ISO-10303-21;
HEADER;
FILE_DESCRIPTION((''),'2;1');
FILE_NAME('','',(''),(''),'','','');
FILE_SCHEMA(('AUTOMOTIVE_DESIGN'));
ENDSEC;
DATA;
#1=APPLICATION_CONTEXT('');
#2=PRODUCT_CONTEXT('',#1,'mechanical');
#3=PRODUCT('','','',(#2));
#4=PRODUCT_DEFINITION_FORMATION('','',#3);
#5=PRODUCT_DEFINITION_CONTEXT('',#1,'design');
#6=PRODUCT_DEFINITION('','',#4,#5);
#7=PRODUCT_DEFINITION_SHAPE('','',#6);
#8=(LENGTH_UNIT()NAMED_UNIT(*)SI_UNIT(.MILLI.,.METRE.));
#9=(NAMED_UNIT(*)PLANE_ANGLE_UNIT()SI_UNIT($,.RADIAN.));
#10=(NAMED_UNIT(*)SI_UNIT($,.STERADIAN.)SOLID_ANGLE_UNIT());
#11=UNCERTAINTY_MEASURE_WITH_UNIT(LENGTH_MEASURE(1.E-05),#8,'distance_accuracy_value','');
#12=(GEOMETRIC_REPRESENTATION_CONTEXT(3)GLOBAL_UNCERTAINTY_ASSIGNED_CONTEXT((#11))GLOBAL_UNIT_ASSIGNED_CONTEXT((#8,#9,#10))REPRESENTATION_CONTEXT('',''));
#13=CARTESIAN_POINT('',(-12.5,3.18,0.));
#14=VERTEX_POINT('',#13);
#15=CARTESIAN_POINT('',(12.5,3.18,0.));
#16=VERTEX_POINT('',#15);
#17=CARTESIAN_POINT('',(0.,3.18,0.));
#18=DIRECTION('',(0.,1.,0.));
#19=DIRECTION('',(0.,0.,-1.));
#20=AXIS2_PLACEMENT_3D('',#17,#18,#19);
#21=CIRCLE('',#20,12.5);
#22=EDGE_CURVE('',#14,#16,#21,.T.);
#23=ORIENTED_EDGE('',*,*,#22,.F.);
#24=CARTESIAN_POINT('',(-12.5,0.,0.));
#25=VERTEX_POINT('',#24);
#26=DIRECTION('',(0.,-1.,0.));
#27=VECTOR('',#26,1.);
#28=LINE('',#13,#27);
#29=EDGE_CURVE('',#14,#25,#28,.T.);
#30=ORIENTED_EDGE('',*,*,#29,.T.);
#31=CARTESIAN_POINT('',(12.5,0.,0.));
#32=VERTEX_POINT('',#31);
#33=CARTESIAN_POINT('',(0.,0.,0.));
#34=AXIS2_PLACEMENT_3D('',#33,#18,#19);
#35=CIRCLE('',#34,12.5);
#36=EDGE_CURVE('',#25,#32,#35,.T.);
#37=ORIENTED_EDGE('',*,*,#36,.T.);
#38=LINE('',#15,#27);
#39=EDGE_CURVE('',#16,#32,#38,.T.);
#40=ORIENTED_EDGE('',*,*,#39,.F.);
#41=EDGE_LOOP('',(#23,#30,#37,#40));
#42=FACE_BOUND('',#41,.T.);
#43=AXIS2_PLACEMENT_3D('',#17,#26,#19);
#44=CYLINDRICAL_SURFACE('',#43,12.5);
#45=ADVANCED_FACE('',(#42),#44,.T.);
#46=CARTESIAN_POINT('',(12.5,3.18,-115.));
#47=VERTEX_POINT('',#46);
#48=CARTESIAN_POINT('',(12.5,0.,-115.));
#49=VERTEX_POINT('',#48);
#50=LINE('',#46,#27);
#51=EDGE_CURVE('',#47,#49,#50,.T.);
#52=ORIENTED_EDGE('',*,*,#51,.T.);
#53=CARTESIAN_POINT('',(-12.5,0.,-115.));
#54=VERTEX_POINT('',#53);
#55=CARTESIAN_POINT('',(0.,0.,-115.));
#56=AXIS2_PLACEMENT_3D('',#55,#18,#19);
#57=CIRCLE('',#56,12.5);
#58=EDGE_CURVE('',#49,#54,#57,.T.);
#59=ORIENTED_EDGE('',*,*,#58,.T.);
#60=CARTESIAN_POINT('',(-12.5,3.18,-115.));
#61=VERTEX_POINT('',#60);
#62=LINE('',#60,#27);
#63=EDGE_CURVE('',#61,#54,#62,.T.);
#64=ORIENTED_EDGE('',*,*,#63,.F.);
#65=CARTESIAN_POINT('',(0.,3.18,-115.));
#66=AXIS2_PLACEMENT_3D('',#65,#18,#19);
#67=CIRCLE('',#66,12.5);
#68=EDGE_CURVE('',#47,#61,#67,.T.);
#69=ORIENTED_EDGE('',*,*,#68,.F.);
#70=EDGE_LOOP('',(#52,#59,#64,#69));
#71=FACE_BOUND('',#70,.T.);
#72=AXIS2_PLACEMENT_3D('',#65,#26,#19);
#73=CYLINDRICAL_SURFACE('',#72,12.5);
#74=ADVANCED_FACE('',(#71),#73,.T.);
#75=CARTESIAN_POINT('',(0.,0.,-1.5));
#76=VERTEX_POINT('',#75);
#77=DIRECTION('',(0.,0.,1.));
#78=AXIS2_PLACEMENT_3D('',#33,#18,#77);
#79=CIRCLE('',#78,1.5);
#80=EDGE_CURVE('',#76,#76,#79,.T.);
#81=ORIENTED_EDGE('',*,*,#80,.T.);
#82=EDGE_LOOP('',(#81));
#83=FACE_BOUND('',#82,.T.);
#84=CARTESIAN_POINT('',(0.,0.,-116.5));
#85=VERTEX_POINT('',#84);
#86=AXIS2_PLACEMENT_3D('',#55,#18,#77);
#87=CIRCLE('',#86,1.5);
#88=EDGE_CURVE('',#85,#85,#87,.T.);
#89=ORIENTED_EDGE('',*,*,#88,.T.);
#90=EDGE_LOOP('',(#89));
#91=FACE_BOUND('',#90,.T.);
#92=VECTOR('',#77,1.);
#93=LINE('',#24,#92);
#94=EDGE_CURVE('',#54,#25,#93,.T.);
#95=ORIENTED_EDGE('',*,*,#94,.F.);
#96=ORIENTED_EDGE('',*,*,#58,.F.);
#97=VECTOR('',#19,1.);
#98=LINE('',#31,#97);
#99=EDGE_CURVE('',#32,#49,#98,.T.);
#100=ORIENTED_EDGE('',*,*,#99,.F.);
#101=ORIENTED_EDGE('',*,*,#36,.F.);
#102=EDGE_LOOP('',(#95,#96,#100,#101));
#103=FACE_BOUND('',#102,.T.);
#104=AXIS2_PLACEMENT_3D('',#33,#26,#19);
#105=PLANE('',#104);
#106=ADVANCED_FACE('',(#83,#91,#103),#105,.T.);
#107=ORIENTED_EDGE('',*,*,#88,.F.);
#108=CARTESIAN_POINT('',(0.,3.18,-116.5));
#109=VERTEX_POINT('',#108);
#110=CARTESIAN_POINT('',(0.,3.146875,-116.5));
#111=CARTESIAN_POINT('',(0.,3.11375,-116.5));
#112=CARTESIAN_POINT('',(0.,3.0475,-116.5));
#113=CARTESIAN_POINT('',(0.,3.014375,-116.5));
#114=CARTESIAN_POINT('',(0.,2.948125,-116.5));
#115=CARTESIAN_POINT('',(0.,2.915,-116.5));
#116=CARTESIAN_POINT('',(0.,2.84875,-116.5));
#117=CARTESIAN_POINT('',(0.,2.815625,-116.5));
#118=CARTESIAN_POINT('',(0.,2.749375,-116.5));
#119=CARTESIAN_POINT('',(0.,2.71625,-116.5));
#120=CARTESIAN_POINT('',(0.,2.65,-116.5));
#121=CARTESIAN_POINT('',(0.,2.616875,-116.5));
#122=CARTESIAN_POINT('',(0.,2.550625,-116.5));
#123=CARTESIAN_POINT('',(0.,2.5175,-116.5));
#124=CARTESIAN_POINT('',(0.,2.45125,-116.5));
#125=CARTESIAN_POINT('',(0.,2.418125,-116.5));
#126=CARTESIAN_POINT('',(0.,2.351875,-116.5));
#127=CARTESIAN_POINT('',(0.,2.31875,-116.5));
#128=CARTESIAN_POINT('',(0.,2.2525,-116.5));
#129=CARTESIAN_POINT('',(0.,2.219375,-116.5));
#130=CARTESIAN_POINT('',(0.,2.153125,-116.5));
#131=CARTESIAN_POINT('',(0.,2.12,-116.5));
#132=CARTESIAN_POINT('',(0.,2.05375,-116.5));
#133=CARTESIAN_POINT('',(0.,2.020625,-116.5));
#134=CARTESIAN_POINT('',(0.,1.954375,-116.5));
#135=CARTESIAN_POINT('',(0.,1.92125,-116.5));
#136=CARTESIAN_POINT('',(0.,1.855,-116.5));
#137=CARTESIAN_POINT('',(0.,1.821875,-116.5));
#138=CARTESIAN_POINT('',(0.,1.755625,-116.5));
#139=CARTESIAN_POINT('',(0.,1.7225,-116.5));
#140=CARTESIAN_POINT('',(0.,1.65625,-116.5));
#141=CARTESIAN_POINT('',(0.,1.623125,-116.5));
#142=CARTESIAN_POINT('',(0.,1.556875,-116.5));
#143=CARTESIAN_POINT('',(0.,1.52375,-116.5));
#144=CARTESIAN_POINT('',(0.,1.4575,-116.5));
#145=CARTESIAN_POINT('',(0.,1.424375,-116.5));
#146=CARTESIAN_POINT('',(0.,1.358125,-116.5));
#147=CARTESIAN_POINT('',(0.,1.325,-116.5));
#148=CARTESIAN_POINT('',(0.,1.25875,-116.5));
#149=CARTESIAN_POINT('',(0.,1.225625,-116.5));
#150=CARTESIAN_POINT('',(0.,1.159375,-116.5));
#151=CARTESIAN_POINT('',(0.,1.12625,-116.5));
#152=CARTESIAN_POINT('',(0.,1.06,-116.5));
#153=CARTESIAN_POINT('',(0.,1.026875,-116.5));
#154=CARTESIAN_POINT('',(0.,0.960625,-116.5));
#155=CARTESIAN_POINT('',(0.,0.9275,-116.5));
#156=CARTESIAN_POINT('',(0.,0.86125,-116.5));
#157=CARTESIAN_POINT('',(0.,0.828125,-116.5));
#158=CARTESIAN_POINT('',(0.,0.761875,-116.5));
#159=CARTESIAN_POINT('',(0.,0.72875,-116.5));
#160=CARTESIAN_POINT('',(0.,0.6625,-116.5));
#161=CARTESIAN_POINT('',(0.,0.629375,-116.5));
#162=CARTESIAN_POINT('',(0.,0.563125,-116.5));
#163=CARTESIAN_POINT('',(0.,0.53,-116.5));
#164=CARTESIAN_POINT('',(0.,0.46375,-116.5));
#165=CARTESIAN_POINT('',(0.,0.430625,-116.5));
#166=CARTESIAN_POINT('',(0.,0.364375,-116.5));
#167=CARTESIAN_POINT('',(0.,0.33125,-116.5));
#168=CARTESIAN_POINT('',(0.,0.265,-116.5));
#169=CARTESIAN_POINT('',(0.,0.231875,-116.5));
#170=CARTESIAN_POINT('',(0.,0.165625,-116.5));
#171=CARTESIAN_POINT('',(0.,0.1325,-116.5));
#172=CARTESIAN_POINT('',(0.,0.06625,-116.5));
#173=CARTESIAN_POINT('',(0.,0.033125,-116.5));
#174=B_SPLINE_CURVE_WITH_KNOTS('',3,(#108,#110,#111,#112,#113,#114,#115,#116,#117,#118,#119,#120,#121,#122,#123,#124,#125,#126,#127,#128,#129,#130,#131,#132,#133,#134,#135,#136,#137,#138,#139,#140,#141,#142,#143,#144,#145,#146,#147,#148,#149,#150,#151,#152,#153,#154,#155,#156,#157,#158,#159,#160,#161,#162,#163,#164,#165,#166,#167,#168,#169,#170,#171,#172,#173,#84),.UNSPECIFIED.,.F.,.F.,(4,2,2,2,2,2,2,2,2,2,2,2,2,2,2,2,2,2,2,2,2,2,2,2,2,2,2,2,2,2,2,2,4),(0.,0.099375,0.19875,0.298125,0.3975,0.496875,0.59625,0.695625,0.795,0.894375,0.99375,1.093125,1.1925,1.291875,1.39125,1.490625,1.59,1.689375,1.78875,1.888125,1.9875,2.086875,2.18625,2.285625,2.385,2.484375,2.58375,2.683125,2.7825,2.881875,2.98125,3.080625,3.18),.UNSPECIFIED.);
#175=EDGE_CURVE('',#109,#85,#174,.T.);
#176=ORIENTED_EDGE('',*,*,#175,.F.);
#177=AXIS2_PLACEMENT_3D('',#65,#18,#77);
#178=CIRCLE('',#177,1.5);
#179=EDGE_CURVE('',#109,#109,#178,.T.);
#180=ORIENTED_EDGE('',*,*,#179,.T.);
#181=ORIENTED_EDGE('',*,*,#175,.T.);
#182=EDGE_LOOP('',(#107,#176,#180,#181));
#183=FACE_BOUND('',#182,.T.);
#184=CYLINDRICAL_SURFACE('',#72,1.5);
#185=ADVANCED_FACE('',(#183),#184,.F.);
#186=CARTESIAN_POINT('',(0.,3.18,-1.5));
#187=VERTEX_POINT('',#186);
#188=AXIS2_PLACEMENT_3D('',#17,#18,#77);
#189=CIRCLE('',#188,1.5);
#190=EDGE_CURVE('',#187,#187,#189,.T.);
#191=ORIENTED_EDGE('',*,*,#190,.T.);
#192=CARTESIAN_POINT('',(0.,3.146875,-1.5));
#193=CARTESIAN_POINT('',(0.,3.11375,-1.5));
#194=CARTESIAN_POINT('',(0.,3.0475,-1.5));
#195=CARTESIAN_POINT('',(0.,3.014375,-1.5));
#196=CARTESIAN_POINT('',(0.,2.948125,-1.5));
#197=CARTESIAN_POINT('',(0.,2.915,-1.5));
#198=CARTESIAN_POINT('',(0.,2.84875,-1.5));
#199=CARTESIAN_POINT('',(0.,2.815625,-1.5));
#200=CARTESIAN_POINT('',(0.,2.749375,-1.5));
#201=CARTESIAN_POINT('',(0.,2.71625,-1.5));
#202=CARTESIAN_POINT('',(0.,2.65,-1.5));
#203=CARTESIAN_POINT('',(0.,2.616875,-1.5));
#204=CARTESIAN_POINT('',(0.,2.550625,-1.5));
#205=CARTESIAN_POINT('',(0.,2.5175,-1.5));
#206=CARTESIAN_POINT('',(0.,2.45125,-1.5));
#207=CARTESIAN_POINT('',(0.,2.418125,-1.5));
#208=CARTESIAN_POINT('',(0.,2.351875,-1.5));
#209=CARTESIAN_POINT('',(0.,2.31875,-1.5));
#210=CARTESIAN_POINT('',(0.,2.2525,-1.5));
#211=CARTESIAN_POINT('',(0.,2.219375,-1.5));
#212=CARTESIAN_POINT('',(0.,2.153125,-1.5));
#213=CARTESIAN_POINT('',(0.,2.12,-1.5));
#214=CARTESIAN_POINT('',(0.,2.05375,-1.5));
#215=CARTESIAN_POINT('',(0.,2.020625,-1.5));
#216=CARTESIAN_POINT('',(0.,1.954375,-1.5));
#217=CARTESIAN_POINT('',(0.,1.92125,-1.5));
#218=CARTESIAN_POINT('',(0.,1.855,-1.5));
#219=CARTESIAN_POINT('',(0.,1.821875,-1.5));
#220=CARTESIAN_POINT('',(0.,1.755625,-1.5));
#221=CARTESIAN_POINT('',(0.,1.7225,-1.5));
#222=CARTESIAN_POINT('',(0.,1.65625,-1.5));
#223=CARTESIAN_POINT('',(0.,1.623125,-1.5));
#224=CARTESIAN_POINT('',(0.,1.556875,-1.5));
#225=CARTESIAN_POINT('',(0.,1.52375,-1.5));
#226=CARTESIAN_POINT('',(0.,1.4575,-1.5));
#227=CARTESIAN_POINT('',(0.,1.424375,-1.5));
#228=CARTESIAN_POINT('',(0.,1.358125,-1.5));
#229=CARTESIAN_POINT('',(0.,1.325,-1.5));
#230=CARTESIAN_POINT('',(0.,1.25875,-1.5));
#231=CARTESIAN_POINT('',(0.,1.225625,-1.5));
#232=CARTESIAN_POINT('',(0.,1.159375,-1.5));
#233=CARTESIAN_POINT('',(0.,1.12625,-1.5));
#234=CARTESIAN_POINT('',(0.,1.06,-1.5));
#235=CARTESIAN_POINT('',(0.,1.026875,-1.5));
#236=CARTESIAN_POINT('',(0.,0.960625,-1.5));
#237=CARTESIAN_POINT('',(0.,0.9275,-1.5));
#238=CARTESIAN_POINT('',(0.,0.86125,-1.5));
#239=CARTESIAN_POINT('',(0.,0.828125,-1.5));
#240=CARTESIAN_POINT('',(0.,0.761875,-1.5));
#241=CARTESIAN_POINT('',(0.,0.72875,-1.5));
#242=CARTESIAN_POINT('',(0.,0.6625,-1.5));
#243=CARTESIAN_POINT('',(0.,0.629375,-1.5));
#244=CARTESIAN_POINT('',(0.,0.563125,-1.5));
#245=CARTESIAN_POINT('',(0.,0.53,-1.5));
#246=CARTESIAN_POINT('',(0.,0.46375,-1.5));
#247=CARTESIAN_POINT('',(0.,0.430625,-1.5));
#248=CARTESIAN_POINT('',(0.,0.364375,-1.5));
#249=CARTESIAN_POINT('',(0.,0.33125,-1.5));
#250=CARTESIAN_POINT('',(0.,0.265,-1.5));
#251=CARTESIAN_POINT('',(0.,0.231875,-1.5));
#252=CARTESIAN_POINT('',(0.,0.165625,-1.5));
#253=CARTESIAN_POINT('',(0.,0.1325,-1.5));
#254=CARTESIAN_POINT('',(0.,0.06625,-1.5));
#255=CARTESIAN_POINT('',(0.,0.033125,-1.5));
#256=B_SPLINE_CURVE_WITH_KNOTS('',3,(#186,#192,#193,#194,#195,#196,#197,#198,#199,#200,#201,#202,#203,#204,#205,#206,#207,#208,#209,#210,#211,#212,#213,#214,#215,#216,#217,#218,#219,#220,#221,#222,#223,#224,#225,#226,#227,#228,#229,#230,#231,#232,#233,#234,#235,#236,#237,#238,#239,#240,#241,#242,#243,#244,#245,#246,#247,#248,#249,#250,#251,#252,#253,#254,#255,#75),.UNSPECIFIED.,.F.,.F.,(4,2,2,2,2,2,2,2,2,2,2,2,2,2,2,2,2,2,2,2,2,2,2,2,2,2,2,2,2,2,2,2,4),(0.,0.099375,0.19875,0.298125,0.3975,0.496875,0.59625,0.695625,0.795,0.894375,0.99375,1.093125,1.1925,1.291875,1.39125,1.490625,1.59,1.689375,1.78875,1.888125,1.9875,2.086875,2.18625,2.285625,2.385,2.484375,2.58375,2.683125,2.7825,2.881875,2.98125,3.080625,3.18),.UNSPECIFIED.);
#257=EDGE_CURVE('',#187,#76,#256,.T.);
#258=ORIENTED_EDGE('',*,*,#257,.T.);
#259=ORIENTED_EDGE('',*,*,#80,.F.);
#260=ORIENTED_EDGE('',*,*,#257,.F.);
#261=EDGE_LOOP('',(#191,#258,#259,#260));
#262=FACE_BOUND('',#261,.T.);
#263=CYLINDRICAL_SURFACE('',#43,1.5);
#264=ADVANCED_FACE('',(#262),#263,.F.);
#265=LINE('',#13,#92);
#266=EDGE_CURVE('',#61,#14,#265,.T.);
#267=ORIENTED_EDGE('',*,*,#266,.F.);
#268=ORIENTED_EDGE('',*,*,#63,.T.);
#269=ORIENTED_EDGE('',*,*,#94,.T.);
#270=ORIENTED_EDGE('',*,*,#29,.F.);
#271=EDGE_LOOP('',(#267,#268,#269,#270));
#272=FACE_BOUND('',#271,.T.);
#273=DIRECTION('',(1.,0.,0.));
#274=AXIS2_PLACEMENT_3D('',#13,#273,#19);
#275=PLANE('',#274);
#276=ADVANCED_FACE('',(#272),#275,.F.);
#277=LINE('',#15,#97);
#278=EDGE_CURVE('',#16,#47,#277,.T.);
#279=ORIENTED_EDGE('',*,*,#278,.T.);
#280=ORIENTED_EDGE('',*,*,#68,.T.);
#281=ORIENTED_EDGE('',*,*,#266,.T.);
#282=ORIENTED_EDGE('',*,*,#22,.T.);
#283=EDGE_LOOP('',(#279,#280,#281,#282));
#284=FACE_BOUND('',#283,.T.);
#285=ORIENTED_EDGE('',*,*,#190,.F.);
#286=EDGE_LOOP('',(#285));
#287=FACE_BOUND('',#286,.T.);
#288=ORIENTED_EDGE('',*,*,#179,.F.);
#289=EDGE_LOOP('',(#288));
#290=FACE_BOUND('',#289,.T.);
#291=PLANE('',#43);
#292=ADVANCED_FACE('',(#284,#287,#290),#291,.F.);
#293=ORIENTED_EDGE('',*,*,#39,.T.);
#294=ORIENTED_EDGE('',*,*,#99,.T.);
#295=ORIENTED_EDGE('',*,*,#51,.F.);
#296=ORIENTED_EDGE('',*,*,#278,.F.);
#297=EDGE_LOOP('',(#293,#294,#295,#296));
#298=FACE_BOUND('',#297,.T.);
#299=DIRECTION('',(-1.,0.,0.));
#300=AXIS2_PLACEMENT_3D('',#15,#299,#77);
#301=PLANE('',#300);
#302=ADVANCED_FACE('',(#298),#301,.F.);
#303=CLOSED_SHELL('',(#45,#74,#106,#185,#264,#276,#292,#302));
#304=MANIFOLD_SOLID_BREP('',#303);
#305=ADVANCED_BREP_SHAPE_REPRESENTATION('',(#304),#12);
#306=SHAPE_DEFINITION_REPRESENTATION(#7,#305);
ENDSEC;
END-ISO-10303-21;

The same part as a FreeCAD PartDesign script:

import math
import FreeCAD as App
import Part
import Sketcher
from FreeCAD import Vector
Q = App.Units.Quantity

doc = App.newDocument("Part")
params = doc.addObject("Spreadsheet::Sheet", "Params")
for row, (alias, value) in enumerate([
    ("sketch1_diameter", "3 mm"),
    ("sketch1_radius", "12.5 mm"),
    ("sketch1_height", "115 mm"),
    ("pad1_length", "3.18 mm"),
], start=1):
    params.set(f"A{row}", alias)
    params.set(f"B{row}", "=" + value)
    params.setAlias(f"B{row}", alias)

body = doc.addObject("PartDesign::Body", "Body")

# Sketch on XZ plane
sketch1 = body.newObject("Sketcher::SketchObject", "Sketch")
sketch1.AttachmentSupport = (doc.getObject("XZ_Plane"), [""])
sketch1.MapMode = "FlatFace"
sketch1.addGeometry(Part.LineSegment(Vector(-12.5, -115, 0), Vector(-12.5, 0, 0)), False)
sketch1.addGeometry(Part.ArcOfCircle(Part.Circle(Vector(0, 0, 0), Vector(0, 0, 1), 12.5), math.radians(0), math.radians(180)), False)
sketch1.addGeometry(Part.LineSegment(Vector(12.5, 0, 0), Vector(12.5, -115, 0)), False)
sketch1.addGeometry(Part.ArcOfCircle(Part.Circle(Vector(0, -115, 0), Vector(0, 0, 1), 12.5), math.radians(180), math.radians(360)), False)
sketch1.addGeometry(Part.Circle(Vector(0, 0, 0), Vector(0, 0, 1), 1.5), False)
sketch1.addGeometry(Part.Circle(Vector(0, -115, 0), Vector(0, 0, 1), 1.5), False)
sketch1.addConstraint(Sketcher.Constraint("Tangent", 0, 2, 1, 2))
sketch1.addConstraint(Sketcher.Constraint("Tangent", 1, 1, 2, 1))
sketch1.addConstraint(Sketcher.Constraint("Tangent", 2, 2, 3, 2))
sketch1.addConstraint(Sketcher.Constraint("Tangent", 3, 1, 0, 1))
sketch1.addConstraint(Sketcher.Constraint("Vertical", 0))
sketch1.addConstraint(Sketcher.Constraint("Vertical", 2))
sketch1.addConstraint(Sketcher.Constraint("Coincident", 1, 3, -1, 1))
sketch1.addConstraint(Sketcher.Constraint("Coincident", 4, 3, -1, 1))
sketch1.addConstraint(Sketcher.Constraint("Coincident", 5, 3, 3, 3))
sketch1.addConstraint(Sketcher.Constraint("Equal", 4, 5))
sketch1.addConstraint(Sketcher.Constraint("Diameter", 4, Q("3 mm")))
sketch1.addConstraint(Sketcher.Constraint("Radius", 1, Q("12.5 mm")))
sketch1.addConstraint(Sketcher.Constraint("DistanceY", 0, 1, 0, 2, Q("115 mm")))
sketch1.setExpression("Constraints[10]", "Params.sketch1_diameter")
sketch1.setExpression("Constraints[11]", "Params.sketch1_radius")
sketch1.setExpression("Constraints[12]", "Params.sketch1_height")
pad1 = body.newObject("PartDesign::Pad", "Pad")
pad1.Profile = sketch1
pad1.setExpression("Length", "Params.pad1_length")
pad1.Reversed = True

doc.recompute()
